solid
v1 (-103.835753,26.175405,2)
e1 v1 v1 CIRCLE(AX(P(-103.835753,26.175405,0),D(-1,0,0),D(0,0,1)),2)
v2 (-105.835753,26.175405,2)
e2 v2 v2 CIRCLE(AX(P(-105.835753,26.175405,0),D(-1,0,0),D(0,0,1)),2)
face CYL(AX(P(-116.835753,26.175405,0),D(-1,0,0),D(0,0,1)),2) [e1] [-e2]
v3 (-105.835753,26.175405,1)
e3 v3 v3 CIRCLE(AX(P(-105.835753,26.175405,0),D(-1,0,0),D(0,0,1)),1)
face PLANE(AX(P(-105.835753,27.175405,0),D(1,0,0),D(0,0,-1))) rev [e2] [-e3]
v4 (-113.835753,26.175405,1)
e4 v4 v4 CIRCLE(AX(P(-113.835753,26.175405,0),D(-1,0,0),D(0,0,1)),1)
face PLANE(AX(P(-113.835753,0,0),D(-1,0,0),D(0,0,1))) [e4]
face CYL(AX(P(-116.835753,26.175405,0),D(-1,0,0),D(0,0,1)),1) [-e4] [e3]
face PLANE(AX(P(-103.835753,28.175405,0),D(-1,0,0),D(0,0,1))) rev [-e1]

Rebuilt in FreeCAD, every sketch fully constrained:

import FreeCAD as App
import Part
import Sketcher
from FreeCAD import Vector


def add_polygon(sketch, points):
    """Adds a closed chain of lines whose ends are joined by coincident constraints."""
    first, n = sketch.GeometryCount, len(points)
    for a, b in zip(points, points[1:] + points[:1]):
        sketch.addGeometry(Part.LineSegment(App.Vector(*a, 0), App.Vector(*b, 0)), False)
    for i in range(n):
        sketch.addConstraint(Sketcher.Constraint("Coincident", first + i, 2, first + (i + 1) % n, 1))

doc = App.newDocument("Part")
params = doc.addObject("Spreadsheet::Sheet", "Params")
for row, (alias, value) in enumerate([
    ("sketch1_width", "11 mm"),
    ("sketch1_width2", "13 mm"),
    ("revolution_angle", "360 deg"),
    ("pocket1_length", "3 mm"),
], start=1):
    params.set(f"A{row}", alias)
    params.set(f"B{row}", "=" + value)
    params.setAlias(f"B{row}", alias)

body = doc.addObject("PartDesign::Body", "Body")

# Sketch on XY plane
sketch1 = body.newObject("Sketcher::SketchObject", "Sketch")
sketch1.AttachmentSupport = (doc.getObject("XY_Plane"), [""])
sketch1.MapMode = "FlatFace"
add_polygon(sketch1, [(-105.8, 27.2), (-116.8, 27.2), (-116.8, 26.2), (-103.8, 26.2), (-103.8, 28.2), (-105.8, 28.2)])  # lines 0-5
sketch1.addGeometry(Part.LineSegment(Vector(-116.8, 26.2, 0), Vector(-103.8, 26.2, 0)), True)  # axis
sketch1.addConstraint([
    Sketcher.Constraint("Horizontal", 0),
    Sketcher.Constraint("Vertical", 1),
    Sketcher.Constraint("Horizontal", 2),
    Sketcher.Constraint("Vertical", 3),
    Sketcher.Constraint("Horizontal", 4),
    Sketcher.Constraint("Vertical", 5),
    Sketcher.Constraint("Horizontal", 6),
    Sketcher.Constraint("Coincident", 6, 1, 1, 2),
    Sketcher.Constraint("Vertical", 3, 2, 6, 2),
    Sketcher.Constraint("Equal", 4, 3),
    Sketcher.Constraint("Equal", 1, 5),
    Sketcher.Constraint("DistanceX", 0, 2, 0, 1, 11.0),
    Sketcher.Constraint("DistanceX", 2, 1, 2, 2, 13.0),
    Sketcher.Constraint("DistanceX", 0, 2, -1, 1, 116.835753),
    Sketcher.Constraint("DistanceY", -1, 1, 0, 2, 27.175405),
])
sketch1.setExpression("Constraints[17]", "Params.sketch1_width")
sketch1.setExpression("Constraints[18]", "Params.sketch1_width2")
revolution = body.newObject("PartDesign::Revolution", "Revolution")
revolution.Profile = sketch1
revolution.ReferenceAxis = (sketch1, ["Axis0"])
revolution.setExpression("Angle", "Params.revolution_angle")

# Sketch on YZ plane
sketch2 = body.newObject("Sketcher::SketchObject", "Sketch001")
sketch2.AttachmentSupport = (doc.getObject("YZ_Plane"), [""])
sketch2.MapMode = "FlatFace"
sketch2.AttachmentOffset = App.Placement(Vector(0, 0, -116.835753), App.Rotation())
add_polygon(sketch2, [(27.3, -1.2), (25.1, -1.2), (25.1, 1.2), (27.3, 1.2)])  # lines 0-3
sketch2.addConstraint([
    Sketcher.Constraint("Horizontal", 0),
    Sketcher.Constraint("Vertical", 1),
    Sketcher.Constraint("Horizontal", 2),
    Sketcher.Constraint("Vertical", 3),
    Sketcher.Constraint("DistanceX", 0, 2, 0, 1, 2.248873),
    Sketcher.Constraint("DistanceY", 1, 1, 1, 2, 2.386092),
    Sketcher.Constraint("DistanceX", -1, 1, 0, 2, 25.073838),
    Sketcher.Constraint("DistanceY", 0, 2, -1, 1, 1.173988),
])
pocket1 = body.newObject("PartDesign::Pocket", "Pocket")
pocket1.Profile = sketch2
pocket1.setExpression("Length", "Params.pocket1_length")
pocket1.Reversed = True

doc.recompute()
